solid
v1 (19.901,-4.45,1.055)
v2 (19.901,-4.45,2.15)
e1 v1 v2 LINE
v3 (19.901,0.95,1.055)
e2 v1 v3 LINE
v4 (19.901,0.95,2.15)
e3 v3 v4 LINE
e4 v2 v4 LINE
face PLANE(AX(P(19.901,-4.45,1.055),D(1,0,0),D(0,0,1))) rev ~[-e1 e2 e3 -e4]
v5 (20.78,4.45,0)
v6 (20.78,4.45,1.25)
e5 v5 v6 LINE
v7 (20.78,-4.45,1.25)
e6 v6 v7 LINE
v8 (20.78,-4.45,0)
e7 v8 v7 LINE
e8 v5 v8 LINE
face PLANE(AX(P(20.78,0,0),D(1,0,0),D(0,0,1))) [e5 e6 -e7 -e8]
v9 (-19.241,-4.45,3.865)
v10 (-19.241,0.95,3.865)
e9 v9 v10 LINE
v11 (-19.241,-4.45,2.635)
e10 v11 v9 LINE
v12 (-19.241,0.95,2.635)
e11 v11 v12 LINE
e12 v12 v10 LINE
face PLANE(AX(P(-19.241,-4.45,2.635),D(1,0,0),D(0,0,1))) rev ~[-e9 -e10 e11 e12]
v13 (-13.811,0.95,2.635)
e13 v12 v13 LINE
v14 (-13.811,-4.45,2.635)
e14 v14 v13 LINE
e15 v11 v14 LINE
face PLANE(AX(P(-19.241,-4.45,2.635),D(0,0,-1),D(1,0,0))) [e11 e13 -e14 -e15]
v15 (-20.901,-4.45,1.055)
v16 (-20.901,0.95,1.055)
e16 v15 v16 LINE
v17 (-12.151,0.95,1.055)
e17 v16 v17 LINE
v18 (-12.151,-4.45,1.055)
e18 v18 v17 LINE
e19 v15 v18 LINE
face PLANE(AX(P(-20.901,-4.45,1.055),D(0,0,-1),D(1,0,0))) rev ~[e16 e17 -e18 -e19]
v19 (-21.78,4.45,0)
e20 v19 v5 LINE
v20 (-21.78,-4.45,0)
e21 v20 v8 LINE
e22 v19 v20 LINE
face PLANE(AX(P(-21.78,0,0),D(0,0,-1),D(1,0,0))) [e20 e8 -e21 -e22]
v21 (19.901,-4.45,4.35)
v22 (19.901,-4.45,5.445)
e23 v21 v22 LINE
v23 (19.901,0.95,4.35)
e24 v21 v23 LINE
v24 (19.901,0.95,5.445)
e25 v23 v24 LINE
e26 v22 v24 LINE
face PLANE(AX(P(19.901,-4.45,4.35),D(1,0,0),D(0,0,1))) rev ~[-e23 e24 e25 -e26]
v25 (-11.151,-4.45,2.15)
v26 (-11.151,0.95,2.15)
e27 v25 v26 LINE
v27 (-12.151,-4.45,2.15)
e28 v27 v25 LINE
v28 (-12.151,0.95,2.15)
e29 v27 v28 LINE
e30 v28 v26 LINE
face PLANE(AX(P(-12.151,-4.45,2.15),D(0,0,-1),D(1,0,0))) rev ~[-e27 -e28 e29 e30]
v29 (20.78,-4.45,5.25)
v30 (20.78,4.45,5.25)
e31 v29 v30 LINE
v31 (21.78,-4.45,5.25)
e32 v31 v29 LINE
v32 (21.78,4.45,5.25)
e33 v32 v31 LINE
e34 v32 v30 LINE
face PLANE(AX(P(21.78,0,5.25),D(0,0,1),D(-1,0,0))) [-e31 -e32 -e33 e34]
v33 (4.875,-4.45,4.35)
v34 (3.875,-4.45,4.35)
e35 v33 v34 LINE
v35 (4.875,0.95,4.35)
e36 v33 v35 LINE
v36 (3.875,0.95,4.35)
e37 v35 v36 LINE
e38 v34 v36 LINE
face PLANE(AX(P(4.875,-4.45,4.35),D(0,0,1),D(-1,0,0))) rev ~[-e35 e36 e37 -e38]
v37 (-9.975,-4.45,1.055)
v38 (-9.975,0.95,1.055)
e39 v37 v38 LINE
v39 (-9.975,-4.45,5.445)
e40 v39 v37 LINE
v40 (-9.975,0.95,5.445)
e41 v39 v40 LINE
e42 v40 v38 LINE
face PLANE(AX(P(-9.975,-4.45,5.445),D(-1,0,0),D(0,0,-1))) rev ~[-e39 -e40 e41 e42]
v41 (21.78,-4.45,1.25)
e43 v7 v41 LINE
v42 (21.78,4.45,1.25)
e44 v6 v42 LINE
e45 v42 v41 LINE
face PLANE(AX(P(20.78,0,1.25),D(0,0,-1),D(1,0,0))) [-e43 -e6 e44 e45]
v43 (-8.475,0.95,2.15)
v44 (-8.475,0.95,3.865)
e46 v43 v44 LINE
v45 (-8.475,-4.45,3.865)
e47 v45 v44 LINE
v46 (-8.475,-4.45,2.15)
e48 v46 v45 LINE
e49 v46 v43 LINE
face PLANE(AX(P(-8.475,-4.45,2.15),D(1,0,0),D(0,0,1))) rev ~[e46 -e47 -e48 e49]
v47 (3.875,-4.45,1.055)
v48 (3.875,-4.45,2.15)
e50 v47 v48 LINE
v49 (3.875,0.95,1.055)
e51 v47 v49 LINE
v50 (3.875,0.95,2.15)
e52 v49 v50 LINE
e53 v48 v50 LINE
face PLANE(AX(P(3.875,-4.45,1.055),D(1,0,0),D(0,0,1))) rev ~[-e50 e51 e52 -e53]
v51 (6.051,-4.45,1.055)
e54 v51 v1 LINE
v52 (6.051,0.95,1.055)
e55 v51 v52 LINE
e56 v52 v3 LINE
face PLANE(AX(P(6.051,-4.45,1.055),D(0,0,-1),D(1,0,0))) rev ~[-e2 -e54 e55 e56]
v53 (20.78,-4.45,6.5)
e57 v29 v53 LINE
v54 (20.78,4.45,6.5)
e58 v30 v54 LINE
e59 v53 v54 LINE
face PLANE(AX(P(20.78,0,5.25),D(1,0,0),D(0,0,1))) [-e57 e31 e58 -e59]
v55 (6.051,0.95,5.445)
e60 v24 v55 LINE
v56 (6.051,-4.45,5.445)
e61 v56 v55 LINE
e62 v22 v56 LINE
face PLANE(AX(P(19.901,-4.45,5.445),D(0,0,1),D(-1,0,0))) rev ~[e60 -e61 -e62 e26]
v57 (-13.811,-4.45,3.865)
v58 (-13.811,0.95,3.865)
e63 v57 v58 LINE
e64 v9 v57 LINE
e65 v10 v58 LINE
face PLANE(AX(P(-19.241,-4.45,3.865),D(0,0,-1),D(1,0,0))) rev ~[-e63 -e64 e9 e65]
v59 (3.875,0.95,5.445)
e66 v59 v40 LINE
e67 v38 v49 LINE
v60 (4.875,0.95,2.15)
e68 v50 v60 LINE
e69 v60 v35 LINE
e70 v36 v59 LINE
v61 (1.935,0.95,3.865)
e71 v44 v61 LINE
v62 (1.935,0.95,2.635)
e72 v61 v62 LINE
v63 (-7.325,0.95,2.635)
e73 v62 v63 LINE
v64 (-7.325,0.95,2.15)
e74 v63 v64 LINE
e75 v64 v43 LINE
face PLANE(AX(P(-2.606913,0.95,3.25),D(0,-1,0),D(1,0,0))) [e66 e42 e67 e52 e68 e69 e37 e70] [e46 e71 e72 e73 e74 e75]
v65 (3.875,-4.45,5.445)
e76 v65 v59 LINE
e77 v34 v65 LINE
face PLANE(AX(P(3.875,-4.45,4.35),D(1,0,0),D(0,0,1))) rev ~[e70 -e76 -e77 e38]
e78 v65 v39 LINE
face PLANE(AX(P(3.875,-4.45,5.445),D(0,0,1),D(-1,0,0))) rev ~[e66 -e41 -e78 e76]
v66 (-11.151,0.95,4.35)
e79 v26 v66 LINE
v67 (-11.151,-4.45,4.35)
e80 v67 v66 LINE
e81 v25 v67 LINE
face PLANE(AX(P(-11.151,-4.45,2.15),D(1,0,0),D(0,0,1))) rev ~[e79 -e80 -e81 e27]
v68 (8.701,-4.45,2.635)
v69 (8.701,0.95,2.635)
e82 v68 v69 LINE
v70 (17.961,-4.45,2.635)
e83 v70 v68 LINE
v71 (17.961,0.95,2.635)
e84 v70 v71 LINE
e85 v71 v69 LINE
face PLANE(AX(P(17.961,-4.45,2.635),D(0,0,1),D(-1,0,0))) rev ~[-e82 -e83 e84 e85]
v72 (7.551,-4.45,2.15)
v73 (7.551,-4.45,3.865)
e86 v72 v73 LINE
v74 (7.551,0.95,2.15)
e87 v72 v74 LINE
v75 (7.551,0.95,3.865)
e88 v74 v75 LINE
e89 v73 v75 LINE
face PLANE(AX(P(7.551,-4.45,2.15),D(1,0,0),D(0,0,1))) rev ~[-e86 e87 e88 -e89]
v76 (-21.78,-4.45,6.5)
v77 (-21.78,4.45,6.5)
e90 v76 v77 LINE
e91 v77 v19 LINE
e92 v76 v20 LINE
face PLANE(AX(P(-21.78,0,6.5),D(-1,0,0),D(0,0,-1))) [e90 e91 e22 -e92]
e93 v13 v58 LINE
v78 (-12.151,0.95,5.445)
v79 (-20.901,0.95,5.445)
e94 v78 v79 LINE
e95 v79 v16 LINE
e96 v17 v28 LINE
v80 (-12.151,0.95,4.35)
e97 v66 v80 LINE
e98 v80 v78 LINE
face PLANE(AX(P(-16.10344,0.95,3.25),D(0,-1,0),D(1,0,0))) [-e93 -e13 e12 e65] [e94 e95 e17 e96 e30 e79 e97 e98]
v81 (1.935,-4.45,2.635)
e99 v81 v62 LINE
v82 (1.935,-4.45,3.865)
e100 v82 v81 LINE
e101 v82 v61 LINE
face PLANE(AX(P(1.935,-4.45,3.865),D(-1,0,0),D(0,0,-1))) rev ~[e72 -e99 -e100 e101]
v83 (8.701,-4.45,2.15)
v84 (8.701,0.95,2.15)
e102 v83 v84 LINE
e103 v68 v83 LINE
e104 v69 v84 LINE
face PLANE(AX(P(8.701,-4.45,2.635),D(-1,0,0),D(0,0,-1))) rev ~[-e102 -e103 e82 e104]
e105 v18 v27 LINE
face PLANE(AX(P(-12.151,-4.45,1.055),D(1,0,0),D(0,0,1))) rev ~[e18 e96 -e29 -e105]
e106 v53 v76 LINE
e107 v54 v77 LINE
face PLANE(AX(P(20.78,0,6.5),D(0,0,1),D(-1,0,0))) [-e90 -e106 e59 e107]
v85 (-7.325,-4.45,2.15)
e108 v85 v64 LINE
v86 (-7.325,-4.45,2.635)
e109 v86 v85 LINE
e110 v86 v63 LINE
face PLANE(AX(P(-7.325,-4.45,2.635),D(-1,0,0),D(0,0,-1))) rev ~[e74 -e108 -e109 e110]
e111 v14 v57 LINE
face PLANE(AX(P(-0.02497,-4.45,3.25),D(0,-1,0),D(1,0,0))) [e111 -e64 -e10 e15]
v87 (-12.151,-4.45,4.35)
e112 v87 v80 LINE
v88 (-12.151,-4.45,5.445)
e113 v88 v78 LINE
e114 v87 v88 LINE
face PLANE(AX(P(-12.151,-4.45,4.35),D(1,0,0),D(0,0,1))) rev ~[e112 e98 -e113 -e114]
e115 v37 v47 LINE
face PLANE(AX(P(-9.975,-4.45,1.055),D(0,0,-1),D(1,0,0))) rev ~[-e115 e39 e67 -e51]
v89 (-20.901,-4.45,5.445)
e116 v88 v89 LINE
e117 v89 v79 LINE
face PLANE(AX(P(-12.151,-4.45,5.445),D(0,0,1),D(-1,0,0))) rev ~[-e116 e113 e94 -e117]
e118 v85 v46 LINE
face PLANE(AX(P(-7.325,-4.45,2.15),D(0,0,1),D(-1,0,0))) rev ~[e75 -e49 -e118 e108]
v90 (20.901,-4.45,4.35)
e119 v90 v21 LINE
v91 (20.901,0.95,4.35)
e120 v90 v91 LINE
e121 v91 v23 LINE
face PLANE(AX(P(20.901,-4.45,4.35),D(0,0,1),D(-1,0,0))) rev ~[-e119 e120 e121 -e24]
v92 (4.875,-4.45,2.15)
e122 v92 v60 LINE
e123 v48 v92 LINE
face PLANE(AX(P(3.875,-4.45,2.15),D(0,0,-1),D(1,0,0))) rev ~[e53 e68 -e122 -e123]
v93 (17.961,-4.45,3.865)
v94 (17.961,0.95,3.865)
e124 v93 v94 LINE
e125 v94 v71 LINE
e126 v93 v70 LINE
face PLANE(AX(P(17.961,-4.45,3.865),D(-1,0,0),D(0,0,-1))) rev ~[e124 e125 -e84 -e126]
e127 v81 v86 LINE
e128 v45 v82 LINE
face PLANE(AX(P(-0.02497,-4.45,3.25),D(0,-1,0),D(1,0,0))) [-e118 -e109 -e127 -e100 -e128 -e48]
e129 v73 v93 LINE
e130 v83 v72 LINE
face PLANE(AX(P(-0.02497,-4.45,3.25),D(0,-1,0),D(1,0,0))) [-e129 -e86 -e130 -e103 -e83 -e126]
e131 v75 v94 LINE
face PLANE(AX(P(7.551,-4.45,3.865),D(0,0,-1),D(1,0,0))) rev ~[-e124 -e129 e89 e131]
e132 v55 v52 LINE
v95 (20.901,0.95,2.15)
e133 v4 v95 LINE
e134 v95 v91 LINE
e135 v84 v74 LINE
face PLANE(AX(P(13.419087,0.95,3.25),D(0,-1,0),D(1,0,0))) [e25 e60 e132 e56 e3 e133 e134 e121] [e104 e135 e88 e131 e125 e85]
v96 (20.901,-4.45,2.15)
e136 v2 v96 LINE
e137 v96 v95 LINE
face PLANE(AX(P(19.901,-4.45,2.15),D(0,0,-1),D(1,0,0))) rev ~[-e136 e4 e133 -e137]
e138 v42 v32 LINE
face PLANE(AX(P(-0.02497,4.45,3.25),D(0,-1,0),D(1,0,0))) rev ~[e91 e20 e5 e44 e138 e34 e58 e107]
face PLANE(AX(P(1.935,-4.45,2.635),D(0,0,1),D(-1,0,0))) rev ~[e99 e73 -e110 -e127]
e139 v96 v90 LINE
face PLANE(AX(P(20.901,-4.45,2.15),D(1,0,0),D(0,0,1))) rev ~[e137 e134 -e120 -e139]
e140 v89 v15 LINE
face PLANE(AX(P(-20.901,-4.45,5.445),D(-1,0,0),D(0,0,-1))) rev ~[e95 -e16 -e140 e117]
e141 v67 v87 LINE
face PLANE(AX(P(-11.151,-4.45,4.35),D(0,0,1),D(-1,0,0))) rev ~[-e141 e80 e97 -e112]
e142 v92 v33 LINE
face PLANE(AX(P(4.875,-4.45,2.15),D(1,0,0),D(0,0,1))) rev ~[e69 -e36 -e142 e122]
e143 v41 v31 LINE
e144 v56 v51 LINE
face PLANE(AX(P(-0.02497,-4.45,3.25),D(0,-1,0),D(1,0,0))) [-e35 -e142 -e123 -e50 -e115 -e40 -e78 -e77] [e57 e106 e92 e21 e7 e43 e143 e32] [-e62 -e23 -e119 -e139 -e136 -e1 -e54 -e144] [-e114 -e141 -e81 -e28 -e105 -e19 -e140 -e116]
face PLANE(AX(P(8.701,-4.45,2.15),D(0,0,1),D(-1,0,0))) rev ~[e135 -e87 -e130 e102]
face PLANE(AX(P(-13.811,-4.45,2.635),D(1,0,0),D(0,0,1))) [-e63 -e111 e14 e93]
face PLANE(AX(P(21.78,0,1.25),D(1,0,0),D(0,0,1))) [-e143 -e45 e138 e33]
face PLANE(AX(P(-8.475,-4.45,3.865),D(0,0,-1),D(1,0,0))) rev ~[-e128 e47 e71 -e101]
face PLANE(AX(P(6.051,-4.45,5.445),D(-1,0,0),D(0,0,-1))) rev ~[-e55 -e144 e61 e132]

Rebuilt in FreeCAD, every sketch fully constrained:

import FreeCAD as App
import Part
import Sketcher
from FreeCAD import Vector
Q = App.Units.Quantity


def add_polygon(sketch, points):
    """Adds a closed chain of lines whose ends are joined by coincident constraints."""
    first, n = sketch.GeometryCount, len(points)
    for a, b in zip(points, points[1:] + points[:1]):
        sketch.addGeometry(Part.LineSegment(App.Vector(*a, 0), App.Vector(*b, 0)), False)
    for i in range(n):
        sketch.addConstraint(Sketcher.Constraint("Coincident", first + i, 2, first + (i + 1) % n, 1))

doc = App.newDocument("Part")
body = doc.addObject("PartDesign::Body", "Body")

sketch1 = doc.addObject("Sketcher::SketchObject", "Sketch")
body.addObject(sketch1)
sketch1.AttachmentSupport = (doc.XZ_Plane, [""])
sketch1.MapMode = "FlatFace"
add_polygon(sketch1, [(-21.8, 6.5), (-21.8, 0), (20.8, 0), (20.8, 1.2), (21.8, 1.2), (21.8, 5.2), (20.8, 5.2), (20.8, 6.5)])
sketch1.addConstraint(Sketcher.Constraint("Vertical", 0))
sketch1.addConstraint(Sketcher.Constraint("Horizontal", 1))
sketch1.addConstraint(Sketcher.Constraint("Vertical", 2))
sketch1.addConstraint(Sketcher.Constraint("Horizontal", 3))
sketch1.addConstraint(Sketcher.Constraint("Vertical", 4))
sketch1.addConstraint(Sketcher.Constraint("Horizontal", 5))
sketch1.addConstraint(Sketcher.Constraint("Vertical", 6))
sketch1.addConstraint(Sketcher.Constraint("Horizontal", 7))
sketch1.addConstraint(Sketcher.Constraint("PointOnObject", 0, 2, -1))
sketch1.addConstraint(Sketcher.Constraint("Vertical", 2, 2, 5, 2))
sketch1.addConstraint(Sketcher.Constraint("Equal", 2, 6))
sketch1.addConstraint(Sketcher.Constraint("DistanceX", 3, 1, 3, 2, Q("1 mm")))
sketch1.addConstraint(Sketcher.Constraint("DistanceY", 4, 1, 4, 2, Q("4 mm")))
sketch1.addConstraint(Sketcher.Constraint("DistanceY", 0, 2, 0, 1, Q("6.5 mm")))
sketch1.addConstraint(Sketcher.Constraint("DistanceX", 1, 1, 1, 2, Q("42.56 mm")))
sketch1.addConstraint(Sketcher.Constraint("DistanceX", 0, 2, -1, 1, Q("21.78 mm")))
pad1 = doc.addObject("PartDesign::Pad", "Pad")
body.addObject(pad1)
pad1.Profile = sketch1
pad1.Length = 8.9
pad1.Midplane = True

sketch2 = doc.addObject("Sketcher::SketchObject", "Sketch001")
body.addObject(sketch2)
sketch2.AttachmentSupport = (doc.XZ_Plane, [""])
sketch2.MapMode = "FlatFace"
sketch2.AttachmentOffset = App.Placement(Vector(0, 0, 4.45), App.Rotation())
add_polygon(sketch2, [(19.9, 4.35), (19.9, 5.45), (6.05, 5.45), (6.05, 1.05), (19.9, 1.05), (19.9, 2.15), (20.9, 2.15), (20.9, 4.35)])
add_polygon(sketch2, [(8.7, 2.15), (7.55, 2.15), (7.55, 3.87), (17.96, 3.87), (17.96, 2.63), (8.7, 2.63)])
add_polygon(sketch2, [(-12.15, 5.45), (-20.9, 5.45), (-20.9, 1.05), (-12.15, 1.05), (-12.15, 2.15), (-11.15, 2.15), (-11.15, 4.35), (-12.15, 4.35)])
add_polygon(sketch2, [(-13.81, 2.63), (-19.24, 2.63), (-19.24, 3.87), (-13.81, 3.87)])
add_polygon(sketch2, [(3.88, 5.45), (-9.97, 5.45), (-9.97, 1.05), (3.88, 1.05), (3.88, 2.15), (4.88, 2.15), (4.88, 4.35), (3.88, 4.35)])
add_polygon(sketch2, [(-7.33, 2.15), (-8.47, 2.15), (-8.47, 3.87), (1.94, 3.87), (1.94, 2.63), (-7.33, 2.63)])
sketch2.addConstraint(Sketcher.Constraint("Vertical", 0))
sketch2.addConstraint(Sketcher.Constraint("Horizontal", 1))
sketch2.addConstraint(Sketcher.Constraint("Vertical", 2))
sketch2.addConstraint(Sketcher.Constraint("Horizontal", 3))
sketch2.addConstraint(Sketcher.Constraint("Vertical", 4))
sketch2.addConstraint(Sketcher.Constraint("Horizontal", 5))
sketch2.addConstraint(Sketcher.Constraint("Vertical", 6))
sketch2.addConstraint(Sketcher.Constraint("Horizontal", 7))
sketch2.addConstraint(Sketcher.Constraint("Horizontal", 8))
sketch2.addConstraint(Sketcher.Constraint("Vertical", 9))
sketch2.addConstraint(Sketcher.Constraint("Horizontal", 10))
sketch2.addConstraint(Sketcher.Constraint("Vertical", 11))
sketch2.addConstraint(Sketcher.Constraint("Horizontal", 12))
sketch2.addConstraint(Sketcher.Constraint("Vertical", 13))
sketch2.addConstraint(Sketcher.Constraint("Horizontal", 14))
sketch2.addConstraint(Sketcher.Constraint("Vertical", 15))
sketch2.addConstraint(Sketcher.Constraint("Horizontal", 16))
sketch2.addConstraint(Sketcher.Constraint("Vertical", 17))
sketch2.addConstraint(Sketcher.Constraint("Horizontal", 18))
sketch2.addConstraint(Sketcher.Constraint("Vertical", 19))
sketch2.addConstraint(Sketcher.Constraint("Horizontal", 20))
sketch2.addConstraint(Sketcher.Constraint("Vertical", 21))
sketch2.addConstraint(Sketcher.Constraint("Horizontal", 22))
sketch2.addConstraint(Sketcher.Constraint("Vertical", 23))
sketch2.addConstraint(Sketcher.Constraint("Horizontal", 24))
sketch2.addConstraint(Sketcher.Constraint("Vertical", 25))
sketch2.addConstraint(Sketcher.Constraint("Horizontal", 26))
sketch2.addConstraint(Sketcher.Constraint("Vertical", 27))
sketch2.addConstraint(Sketcher.Constraint("Horizontal", 28))
sketch2.addConstraint(Sketcher.Constraint("Vertical", 29))
sketch2.addConstraint(Sketcher.Constraint("Horizontal", 30))
sketch2.addConstraint(Sketcher.Constraint("Vertical", 31))
sketch2.addConstraint(Sketcher.Constraint("Horizontal", 32))
sketch2.addConstraint(Sketcher.Constraint("Vertical", 33))
sketch2.addConstraint(Sketcher.Constraint("Horizontal", 34))
sketch2.addConstraint(Sketcher.Constraint("Vertical", 35))
sketch2.addConstraint(Sketcher.Constraint("Horizontal", 36))
sketch2.addConstraint(Sketcher.Constraint("Vertical", 37))
sketch2.addConstraint(Sketcher.Constraint("Horizontal", 38))
sketch2.addConstraint(Sketcher.Constraint("Vertical", 39))
sketch2.addConstraint(Sketcher.Constraint("Horizontal", 5, 2, 8, 2))
sketch2.addConstraint(Sketcher.Constraint("Horizontal", 1, 2, 14, 2))
sketch2.addConstraint(Sketcher.Constraint("Horizontal", 3, 2, 15, 2))
sketch2.addConstraint(Sketcher.Constraint("Horizontal", 13, 2, 17, 2))
sketch2.addConstraint(Sketcher.Constraint("Horizontal", 7, 2, 19, 2))
sketch2.addConstraint(Sketcher.Constraint("Horizontal", 12, 2, 22, 2))
sketch2.addConstraint(Sketcher.Constraint("Horizontal", 10, 2, 23, 2))
sketch2.addConstraint(Sketcher.Constraint("Horizontal", 21, 2, 26, 2))
sketch2.addConstraint(Sketcher.Constraint("Horizontal", 16, 2, 27, 2))
sketch2.addConstraint(Sketcher.Constraint("Horizontal", 18, 2, 29, 2))
sketch2.addConstraint(Sketcher.Constraint("Horizontal", 20, 2, 31, 2))
sketch2.addConstraint(Sketcher.Constraint("Horizontal", 30, 2, 34, 2))
sketch2.addConstraint(Sketcher.Constraint("Horizontal", 24, 2, 35, 2))
sketch2.addConstraint(Sketcher.Constraint("Horizontal", 25, 2, 37, 2))
sketch2.addConstraint(Sketcher.Constraint("Vertical", 0, 2, 3, 2))
sketch2.addConstraint(Sketcher.Constraint("Vertical", 17, 2, 20, 2))
sketch2.addConstraint(Sketcher.Constraint("Vertical", 29, 2, 32, 2))
sketch2.addConstraint(Sketcher.Constraint("Equal", 7, 18))
sketch2.addConstraint(Sketcher.Constraint("Equal", 3, 26))
sketch2.addConstraint(Sketcher.Constraint("Equal", 20, 30))
sketch2.addConstraint(Sketcher.Constraint("Equal", 8, 34))
sketch2.addConstraint(Sketcher.Constraint("Equal", 10, 36))
sketch2.addConstraint(Sketcher.Constraint("Equal", 0, 4))
sketch2.addConstraint(Sketcher.Constraint("DistanceX", 5, 1, 5, 2, Q("1 mm")))
sketch2.addConstraint(Sketcher.Constraint("DistanceY", 6, 1, 6, 2, Q("2.2 mm")))
sketch2.addConstraint(Sketcher.Constraint("DistanceX", 1, 2, 1, 1, Q("13.85 mm")))
sketch2.addConstraint(Sketcher.Constraint("DistanceX", 8, 2, 8, 1, Q("1.15 mm")))
sketch2.addConstraint(Sketcher.Constraint("DistanceX", 10, 1, 10, 2, Q("10.41 mm")))
sketch2.addConstraint(Sketcher.Constraint("DistanceX", 14, 2, 14, 1, Q("8.75 mm")))
sketch2.addConstraint(Sketcher.Constraint("DistanceX", 22, 2, 22, 1, Q("5.43 mm")))
sketch2.addConstraint(Sketcher.Constraint("DistanceY", 2, 2, 2, 1, Q("4.39 mm")))
sketch2.addConstraint(Sketcher.Constraint("DistanceY", 11, 2, 11, 1, Q("1.23 mm")))
sketch2.addConstraint(Sketcher.Constraint("DistanceX", 2, 2, 8, 2, Q("1.5 mm")))
sketch2.addConstraint(Sketcher.Constraint("DistanceX", 27, 2, 34, 2, Q("1.5 mm")))
sketch2.addConstraint(Sketcher.Constraint("DistanceY", 9, 1, 9, 2, Q("1.715 mm")))
sketch2.addConstraint(Sketcher.Constraint("DistanceY", -1, 1, 4, 2, Q("2.15 mm")))
sketch2.addConstraint(Sketcher.Constraint("DistanceX", 15, 2, 22, 2, Q("1.66 mm")))
sketch2.addConstraint(Sketcher.Constraint("DistanceX", -1, 1, 0, 2, Q("19.901 mm")))
sketch2.addConstraint(Sketcher.Constraint("DistanceX", 14, 2, -1, 1, Q("20.901 mm")))
sketch2.addConstraint(Sketcher.Constraint("DistanceX", 26, 2, -1, 1, Q("9.975 mm")))
pocket1 = doc.addObject("PartDesign::Pocket", "Pocket")
body.addObject(pocket1)
pocket1.Profile = sketch2
pocket1.Length = 5.4

doc.recompute()
